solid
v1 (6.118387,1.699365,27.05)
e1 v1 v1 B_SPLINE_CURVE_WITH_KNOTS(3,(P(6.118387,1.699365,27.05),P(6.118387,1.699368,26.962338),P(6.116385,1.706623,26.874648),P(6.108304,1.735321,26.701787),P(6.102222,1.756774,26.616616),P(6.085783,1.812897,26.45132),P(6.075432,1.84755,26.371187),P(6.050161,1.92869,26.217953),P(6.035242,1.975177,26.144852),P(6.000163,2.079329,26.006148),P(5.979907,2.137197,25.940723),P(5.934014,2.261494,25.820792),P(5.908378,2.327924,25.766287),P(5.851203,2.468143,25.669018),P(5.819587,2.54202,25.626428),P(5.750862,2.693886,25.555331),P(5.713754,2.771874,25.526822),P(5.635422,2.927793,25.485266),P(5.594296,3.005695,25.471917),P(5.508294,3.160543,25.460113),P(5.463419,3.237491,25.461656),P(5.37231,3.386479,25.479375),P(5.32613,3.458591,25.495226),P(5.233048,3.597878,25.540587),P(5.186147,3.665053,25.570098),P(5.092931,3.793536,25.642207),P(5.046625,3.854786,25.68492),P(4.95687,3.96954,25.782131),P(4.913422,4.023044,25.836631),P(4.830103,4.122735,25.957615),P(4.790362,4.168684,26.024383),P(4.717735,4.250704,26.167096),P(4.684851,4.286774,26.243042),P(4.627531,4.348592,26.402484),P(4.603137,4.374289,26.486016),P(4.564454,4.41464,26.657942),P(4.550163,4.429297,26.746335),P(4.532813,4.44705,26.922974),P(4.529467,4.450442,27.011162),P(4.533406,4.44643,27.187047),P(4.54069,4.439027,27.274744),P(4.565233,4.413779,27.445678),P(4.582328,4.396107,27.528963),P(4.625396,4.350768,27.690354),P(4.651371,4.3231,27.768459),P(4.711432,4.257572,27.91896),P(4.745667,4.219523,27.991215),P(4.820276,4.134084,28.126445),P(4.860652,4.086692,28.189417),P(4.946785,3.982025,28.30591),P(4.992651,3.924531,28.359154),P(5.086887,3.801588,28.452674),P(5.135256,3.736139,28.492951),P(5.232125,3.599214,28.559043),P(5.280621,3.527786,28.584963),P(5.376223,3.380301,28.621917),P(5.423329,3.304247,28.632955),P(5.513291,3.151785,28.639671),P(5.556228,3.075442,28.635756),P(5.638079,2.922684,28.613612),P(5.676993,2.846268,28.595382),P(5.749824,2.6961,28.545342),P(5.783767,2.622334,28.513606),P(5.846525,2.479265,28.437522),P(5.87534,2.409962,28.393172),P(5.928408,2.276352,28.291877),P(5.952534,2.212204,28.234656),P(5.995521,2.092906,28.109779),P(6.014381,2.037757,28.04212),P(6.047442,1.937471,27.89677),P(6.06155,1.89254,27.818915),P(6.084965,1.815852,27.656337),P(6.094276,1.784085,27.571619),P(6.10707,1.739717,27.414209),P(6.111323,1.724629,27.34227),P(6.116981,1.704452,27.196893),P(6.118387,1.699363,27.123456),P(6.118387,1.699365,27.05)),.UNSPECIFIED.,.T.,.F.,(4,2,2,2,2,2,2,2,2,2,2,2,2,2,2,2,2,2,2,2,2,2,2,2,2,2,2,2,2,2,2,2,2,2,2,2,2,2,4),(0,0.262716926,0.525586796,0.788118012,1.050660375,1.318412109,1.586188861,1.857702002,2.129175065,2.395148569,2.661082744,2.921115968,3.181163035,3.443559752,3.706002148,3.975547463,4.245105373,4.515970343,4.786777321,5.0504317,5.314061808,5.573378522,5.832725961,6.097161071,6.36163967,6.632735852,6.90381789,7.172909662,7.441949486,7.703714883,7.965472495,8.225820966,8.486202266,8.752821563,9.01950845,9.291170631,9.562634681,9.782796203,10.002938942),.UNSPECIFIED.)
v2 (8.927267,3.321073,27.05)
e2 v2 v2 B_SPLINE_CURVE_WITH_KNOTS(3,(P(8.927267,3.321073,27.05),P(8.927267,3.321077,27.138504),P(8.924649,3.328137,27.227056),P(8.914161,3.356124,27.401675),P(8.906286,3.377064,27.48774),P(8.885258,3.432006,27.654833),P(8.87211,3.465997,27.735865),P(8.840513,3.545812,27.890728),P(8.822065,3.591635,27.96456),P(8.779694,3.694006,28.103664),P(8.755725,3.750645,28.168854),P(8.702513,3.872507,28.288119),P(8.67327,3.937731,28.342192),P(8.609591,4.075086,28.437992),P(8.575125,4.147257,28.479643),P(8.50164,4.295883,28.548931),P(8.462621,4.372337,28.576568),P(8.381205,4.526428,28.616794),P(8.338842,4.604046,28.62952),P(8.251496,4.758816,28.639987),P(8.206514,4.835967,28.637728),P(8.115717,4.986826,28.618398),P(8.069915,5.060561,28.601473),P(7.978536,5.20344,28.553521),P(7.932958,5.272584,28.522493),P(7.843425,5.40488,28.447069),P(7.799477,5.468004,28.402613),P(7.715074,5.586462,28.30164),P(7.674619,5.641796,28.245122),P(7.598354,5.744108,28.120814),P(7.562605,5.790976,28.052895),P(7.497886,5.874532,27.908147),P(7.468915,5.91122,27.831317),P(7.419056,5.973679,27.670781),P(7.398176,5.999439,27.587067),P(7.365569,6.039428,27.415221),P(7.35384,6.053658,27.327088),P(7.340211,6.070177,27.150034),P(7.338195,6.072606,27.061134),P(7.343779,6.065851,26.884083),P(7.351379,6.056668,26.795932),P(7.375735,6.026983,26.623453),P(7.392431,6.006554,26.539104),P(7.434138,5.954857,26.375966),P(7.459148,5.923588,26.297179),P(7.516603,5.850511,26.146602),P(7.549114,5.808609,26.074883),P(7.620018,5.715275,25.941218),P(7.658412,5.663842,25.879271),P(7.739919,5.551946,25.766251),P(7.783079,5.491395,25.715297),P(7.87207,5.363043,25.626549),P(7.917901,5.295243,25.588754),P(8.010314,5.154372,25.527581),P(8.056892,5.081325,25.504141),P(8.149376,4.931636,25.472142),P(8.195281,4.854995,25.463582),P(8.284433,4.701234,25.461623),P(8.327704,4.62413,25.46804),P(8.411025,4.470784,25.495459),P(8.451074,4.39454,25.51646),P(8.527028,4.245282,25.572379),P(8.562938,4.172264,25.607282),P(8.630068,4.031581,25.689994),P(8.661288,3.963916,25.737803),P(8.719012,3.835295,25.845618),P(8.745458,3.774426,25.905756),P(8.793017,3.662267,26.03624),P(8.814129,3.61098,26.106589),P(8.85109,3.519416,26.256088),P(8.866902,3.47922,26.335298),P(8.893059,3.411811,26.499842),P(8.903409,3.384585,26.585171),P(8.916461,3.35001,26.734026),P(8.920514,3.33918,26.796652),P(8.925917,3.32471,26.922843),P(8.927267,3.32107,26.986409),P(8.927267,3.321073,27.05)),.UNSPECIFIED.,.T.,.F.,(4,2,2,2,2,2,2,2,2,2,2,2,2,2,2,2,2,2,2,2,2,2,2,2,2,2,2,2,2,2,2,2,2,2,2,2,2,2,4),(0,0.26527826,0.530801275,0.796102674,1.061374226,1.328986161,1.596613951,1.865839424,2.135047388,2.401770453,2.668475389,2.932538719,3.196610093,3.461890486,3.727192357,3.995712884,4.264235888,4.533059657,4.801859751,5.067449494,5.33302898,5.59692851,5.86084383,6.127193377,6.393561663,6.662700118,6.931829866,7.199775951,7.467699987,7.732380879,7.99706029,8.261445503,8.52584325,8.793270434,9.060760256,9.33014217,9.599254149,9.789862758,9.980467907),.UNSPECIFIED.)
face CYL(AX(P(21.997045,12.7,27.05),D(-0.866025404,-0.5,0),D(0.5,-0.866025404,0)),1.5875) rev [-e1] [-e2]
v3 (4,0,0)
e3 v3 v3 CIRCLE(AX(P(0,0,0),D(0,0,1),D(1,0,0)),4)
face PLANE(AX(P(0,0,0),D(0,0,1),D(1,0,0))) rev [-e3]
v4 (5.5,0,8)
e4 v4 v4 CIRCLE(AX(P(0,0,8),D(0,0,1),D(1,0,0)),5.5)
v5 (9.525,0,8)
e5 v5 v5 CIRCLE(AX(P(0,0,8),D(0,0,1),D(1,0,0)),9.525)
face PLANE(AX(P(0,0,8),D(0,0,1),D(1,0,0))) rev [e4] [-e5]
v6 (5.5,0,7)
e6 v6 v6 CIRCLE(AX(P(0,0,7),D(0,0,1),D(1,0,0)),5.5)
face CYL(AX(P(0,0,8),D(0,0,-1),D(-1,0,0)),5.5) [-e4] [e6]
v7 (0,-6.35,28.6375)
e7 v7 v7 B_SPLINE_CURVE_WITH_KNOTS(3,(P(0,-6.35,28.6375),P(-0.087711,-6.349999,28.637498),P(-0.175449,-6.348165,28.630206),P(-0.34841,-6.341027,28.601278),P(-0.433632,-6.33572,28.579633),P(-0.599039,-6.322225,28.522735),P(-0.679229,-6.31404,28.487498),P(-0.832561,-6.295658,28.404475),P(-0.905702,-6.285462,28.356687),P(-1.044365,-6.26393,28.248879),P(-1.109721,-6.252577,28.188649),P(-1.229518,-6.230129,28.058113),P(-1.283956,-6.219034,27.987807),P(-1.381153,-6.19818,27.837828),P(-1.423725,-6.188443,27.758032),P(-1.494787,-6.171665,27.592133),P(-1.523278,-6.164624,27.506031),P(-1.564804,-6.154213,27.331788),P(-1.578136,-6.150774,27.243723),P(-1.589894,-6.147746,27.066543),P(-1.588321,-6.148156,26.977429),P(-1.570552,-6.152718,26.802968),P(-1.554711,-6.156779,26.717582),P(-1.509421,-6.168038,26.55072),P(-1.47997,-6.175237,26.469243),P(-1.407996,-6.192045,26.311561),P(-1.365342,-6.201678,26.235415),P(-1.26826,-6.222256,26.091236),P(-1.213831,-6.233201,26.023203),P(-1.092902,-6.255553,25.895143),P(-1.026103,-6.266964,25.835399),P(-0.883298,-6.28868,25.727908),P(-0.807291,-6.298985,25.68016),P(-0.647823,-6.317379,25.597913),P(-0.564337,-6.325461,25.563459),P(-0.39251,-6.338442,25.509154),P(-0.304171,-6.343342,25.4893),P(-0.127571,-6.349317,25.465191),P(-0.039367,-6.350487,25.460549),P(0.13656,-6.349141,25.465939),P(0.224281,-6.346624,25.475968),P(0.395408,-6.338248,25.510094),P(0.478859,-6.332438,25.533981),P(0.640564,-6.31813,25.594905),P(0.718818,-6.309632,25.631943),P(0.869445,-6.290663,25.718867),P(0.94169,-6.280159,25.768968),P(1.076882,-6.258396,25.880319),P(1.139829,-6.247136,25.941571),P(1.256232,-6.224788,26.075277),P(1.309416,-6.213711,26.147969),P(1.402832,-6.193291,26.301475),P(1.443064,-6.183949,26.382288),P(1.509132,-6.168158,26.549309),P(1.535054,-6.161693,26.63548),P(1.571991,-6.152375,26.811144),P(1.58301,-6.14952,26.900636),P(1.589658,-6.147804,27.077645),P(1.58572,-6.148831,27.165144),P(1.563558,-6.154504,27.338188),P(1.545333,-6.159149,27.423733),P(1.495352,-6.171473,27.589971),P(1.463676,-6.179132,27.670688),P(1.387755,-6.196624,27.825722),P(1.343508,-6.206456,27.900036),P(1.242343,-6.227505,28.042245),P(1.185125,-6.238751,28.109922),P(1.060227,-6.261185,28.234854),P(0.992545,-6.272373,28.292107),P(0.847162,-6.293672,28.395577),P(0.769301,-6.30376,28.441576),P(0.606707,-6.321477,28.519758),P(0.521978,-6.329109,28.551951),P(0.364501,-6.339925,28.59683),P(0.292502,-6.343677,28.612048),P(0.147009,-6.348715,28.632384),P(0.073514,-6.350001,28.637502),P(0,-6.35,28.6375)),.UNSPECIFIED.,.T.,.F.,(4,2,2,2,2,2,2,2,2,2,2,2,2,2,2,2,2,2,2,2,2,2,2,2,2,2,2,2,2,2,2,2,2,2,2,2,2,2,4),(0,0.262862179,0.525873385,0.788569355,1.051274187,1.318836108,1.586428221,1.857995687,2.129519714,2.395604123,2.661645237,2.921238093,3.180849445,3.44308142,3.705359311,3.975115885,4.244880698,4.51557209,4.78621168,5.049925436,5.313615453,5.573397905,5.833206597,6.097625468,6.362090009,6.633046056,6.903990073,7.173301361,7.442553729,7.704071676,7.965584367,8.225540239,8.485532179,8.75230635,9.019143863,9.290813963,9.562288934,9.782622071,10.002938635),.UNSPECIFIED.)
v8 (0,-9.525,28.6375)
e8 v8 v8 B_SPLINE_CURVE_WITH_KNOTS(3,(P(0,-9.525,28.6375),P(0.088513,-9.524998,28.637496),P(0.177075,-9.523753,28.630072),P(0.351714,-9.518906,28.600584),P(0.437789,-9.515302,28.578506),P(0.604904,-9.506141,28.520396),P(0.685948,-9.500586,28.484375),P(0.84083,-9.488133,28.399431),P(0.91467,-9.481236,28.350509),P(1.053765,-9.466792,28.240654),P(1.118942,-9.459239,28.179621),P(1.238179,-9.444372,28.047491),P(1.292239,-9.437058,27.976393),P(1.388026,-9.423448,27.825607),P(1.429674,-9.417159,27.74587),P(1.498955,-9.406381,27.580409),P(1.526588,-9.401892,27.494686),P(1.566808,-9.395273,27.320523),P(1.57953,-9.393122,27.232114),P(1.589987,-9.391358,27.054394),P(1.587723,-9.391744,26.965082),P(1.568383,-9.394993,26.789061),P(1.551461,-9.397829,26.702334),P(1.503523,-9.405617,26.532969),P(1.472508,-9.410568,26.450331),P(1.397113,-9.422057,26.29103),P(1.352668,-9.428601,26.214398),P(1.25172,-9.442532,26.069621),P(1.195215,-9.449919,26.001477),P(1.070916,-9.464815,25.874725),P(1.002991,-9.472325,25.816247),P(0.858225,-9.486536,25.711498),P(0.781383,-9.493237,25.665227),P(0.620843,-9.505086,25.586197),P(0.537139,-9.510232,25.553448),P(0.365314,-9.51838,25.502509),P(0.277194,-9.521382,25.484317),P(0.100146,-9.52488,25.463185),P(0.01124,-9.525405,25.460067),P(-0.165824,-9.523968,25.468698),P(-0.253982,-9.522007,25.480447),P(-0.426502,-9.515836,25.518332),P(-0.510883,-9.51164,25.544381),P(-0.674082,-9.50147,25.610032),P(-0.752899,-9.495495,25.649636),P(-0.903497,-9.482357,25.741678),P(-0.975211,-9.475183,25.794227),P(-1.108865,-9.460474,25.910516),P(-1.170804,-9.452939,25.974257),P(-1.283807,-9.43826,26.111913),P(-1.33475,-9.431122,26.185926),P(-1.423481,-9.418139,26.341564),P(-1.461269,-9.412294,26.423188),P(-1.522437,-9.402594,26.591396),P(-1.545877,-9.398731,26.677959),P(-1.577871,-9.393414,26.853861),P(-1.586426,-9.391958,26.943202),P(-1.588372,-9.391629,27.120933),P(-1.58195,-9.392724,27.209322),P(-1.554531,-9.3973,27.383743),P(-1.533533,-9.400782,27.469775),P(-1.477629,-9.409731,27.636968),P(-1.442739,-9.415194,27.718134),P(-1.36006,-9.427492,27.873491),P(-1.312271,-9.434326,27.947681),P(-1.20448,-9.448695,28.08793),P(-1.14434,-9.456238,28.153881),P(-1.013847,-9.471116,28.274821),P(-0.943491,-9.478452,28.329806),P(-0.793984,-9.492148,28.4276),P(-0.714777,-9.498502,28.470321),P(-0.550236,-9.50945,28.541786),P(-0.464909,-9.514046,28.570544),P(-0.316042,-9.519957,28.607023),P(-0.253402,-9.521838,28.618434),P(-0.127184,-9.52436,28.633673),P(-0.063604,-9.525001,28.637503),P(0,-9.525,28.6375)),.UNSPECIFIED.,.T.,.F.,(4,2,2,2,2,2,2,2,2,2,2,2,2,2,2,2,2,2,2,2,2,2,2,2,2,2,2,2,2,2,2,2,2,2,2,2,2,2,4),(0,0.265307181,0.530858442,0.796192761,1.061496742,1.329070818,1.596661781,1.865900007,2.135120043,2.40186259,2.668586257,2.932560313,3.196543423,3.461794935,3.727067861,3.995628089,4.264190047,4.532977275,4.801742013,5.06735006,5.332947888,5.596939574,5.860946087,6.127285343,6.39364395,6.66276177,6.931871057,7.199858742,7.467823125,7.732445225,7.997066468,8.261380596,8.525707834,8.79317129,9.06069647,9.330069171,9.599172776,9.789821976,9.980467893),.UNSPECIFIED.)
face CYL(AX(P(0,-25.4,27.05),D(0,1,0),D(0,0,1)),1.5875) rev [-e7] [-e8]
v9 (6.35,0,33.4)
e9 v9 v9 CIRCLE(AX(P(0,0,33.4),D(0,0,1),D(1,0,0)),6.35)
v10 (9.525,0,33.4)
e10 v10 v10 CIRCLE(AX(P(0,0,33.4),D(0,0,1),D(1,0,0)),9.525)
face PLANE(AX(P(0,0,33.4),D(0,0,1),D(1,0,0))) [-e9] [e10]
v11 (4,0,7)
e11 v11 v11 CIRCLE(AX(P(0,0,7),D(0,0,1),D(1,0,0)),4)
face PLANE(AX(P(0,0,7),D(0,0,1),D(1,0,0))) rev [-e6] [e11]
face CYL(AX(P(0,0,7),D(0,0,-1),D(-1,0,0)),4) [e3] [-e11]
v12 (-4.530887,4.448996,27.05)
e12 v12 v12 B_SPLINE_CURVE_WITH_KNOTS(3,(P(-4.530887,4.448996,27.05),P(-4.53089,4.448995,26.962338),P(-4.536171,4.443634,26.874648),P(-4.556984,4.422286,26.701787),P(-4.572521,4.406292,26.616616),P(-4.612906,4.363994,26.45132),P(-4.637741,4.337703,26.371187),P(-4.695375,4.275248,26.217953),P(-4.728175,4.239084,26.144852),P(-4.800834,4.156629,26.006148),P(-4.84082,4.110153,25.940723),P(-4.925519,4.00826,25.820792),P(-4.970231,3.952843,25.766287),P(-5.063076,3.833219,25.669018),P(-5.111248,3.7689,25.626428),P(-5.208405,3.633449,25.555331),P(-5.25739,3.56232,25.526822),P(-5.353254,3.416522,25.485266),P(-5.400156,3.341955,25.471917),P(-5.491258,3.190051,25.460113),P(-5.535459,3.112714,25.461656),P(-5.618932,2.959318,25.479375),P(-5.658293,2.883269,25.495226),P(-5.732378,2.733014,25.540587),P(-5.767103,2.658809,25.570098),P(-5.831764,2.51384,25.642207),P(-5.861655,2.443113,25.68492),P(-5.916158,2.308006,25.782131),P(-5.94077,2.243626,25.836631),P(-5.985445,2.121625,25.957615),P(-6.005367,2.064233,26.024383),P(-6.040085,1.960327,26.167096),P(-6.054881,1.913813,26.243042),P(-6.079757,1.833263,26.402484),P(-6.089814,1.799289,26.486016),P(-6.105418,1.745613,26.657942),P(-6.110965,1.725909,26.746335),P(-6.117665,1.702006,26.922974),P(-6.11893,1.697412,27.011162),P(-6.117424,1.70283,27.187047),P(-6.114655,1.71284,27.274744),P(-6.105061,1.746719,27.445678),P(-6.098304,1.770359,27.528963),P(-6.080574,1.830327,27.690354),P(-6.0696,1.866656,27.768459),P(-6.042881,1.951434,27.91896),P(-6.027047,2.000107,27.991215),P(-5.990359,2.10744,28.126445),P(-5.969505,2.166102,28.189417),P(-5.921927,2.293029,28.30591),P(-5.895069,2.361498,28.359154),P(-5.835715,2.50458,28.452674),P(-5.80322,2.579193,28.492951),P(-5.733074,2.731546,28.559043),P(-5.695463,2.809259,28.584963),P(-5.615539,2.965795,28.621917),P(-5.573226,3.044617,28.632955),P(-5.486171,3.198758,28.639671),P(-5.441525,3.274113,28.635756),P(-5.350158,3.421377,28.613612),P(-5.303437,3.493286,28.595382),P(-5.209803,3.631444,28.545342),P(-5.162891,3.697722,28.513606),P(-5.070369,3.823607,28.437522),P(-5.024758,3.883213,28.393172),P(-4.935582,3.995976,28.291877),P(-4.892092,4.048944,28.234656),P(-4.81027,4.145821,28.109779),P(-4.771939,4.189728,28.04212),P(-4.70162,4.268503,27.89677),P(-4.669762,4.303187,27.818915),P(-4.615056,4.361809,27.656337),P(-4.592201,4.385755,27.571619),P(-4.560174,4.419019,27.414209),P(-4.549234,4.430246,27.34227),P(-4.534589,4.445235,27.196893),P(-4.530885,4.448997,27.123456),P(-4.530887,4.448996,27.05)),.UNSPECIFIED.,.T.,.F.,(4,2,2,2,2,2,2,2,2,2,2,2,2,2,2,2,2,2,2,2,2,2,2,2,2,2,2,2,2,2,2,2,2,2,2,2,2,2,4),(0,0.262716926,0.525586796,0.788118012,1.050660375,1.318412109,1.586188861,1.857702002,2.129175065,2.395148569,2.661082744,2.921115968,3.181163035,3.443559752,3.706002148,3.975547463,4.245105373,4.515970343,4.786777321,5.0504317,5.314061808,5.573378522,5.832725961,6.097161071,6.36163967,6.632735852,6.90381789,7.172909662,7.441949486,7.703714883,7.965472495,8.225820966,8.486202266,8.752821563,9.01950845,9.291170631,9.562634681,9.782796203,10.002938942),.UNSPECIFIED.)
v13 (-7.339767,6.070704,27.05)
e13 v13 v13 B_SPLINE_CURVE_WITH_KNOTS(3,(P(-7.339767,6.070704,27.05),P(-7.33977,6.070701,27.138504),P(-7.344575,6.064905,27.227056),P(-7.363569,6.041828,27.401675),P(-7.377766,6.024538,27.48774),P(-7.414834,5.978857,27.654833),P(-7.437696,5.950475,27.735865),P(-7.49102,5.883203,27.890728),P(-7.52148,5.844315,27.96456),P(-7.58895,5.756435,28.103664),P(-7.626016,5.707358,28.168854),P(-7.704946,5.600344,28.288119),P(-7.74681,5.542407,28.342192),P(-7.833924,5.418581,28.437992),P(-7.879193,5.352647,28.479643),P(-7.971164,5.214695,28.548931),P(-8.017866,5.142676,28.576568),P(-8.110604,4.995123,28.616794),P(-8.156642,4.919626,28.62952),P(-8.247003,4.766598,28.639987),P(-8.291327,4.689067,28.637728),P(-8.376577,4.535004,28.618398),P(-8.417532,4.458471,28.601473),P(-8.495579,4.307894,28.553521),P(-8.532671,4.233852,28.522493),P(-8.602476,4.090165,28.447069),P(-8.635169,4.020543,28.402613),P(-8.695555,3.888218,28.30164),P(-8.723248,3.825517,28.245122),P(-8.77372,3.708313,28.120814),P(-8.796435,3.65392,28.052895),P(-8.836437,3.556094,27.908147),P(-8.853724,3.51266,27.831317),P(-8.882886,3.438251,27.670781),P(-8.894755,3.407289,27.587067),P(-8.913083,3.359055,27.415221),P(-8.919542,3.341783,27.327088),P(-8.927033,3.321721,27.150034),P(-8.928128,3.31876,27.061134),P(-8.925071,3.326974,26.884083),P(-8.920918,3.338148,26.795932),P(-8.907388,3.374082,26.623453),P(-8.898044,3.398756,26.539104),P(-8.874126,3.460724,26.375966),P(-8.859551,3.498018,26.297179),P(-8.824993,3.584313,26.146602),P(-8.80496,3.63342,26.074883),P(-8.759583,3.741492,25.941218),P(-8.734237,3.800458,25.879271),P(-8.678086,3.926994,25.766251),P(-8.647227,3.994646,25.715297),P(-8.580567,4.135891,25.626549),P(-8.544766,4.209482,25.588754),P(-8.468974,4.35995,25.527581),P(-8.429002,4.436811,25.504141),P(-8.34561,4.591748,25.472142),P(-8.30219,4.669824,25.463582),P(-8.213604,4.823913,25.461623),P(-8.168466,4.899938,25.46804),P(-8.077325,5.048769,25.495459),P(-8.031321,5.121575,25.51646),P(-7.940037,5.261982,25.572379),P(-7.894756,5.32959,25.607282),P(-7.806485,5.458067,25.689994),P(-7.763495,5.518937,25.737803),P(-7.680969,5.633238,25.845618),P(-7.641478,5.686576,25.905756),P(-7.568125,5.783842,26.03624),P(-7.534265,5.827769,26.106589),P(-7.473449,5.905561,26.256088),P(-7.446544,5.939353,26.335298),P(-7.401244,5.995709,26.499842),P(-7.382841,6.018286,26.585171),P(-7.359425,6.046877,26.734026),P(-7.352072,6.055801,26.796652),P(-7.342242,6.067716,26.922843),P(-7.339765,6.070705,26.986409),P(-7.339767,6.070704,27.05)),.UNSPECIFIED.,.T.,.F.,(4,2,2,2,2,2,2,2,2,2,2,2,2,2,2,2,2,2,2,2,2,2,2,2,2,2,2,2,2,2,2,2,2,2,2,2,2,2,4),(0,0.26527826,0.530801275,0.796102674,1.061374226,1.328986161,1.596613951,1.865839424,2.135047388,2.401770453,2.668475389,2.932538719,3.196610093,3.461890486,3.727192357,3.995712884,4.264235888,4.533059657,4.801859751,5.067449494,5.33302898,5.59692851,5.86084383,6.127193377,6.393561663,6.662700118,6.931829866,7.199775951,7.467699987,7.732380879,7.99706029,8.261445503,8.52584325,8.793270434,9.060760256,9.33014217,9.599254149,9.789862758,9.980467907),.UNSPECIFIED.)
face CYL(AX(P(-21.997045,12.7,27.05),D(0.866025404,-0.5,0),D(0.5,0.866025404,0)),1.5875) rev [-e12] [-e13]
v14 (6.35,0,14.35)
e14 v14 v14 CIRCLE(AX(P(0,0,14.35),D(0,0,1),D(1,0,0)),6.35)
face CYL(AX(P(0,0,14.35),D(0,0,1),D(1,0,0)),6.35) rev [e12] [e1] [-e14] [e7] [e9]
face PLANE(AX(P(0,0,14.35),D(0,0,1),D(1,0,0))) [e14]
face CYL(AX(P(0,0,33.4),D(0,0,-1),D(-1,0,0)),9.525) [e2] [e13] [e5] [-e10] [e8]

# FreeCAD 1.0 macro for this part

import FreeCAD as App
import Part
import Sketcher

V = App.Vector
Q = App.Units.Quantity

doc = App.newDocument("Part")
body = doc.addObject("PartDesign::Body", "Body")

# Sketch on XY plane
sketch1 = body.newObject("Sketcher::SketchObject", "Sketch")
sketch1.AttachmentSupport = (doc.getObject("XY_Plane"), [""])
sketch1.MapMode = "FlatFace"
sketch1.addGeometry(Part.Circle(V(0, 0, 0), V(0, 0, 1), 4), False)
sketch1.addConstraint([
    Sketcher.Constraint("Coincident", 0, 3, -1, 1),
    Sketcher.Constraint("Diameter", 0, Q("8 mm")),
])
pad1 = body.newObject("PartDesign::Pad", "Pad")
pad1.Profile = sketch1
pad1.Length = 7

# Sketch on XY plane
sketch2 = body.newObject("Sketcher::SketchObject", "Sketch001")
sketch2.AttachmentSupport = (doc.getObject("XY_Plane"), [""])
sketch2.MapMode = "FlatFace"
sketch2.AttachmentOffset = App.Placement(V(0, 0, 7), App.Rotation())
sketch2.addGeometry(Part.Circle(V(0, 0, 0), V(0, 0, 1), 5.5), False)
sketch2.addConstraint([
    Sketcher.Constraint("Coincident", 0, 3, -1, 1),
    Sketcher.Constraint("Diameter", 0, Q("11 mm")),
])
pad2 = body.newObject("PartDesign::Pad", "Pad001")
pad2.Profile = sketch2
pad2.Length = 1

# Sketch on XY plane
sketch3 = body.newObject("Sketcher::SketchObject", "Sketch002")
sketch3.AttachmentSupport = (doc.getObject("XY_Plane"), [""])
sketch3.MapMode = "FlatFace"
sketch3.AttachmentOffset = App.Placement(V(0, 0, 8), App.Rotation())
sketch3.addGeometry(Part.Circle(V(0, 0, 0), V(0, 0, 1), 9.525), False)
sketch3.addConstraint([
    Sketcher.Constraint("Coincident", 0, 3, -1, 1),
    Sketcher.Constraint("Diameter", 0, Q("19.05 mm")),
])
pad3 = body.newObject("PartDesign::Pad", "Pad002")
pad3.Profile = sketch3
pad3.Length = 25.4

# Sketch on XY plane
sketch4 = body.newObject("Sketcher::SketchObject", "Sketch003")
sketch4.AttachmentSupport = (doc.getObject("XY_Plane"), [""])
sketch4.MapMode = "FlatFace"
sketch4.AttachmentOffset = App.Placement(V(0, 0, 33.4), App.Rotation())
sketch4.addGeometry(Part.Circle(V(0, 0, 0), V(0, 0, 1), 6.35), False)
sketch4.addConstraint([
    Sketcher.Constraint("Coincident", 0, 3, -1, 1),
    Sketcher.Constraint("Diameter", 0, Q("12.7 mm")),
])
pocket1 = body.newObject("PartDesign::Pocket", "Pocket")
pocket1.Profile = sketch4
pocket1.Length = 19.05

# Sketch on XZ plane
sketch5 = body.newObject("Sketcher::SketchObject", "Sketch004")
sketch5.AttachmentSupport = (doc.getObject("XZ_Plane"), [""])
sketch5.MapMode = "FlatFace"
sketch5.addGeometry(Part.Circle(V(0, 27.05, 0), V(0, 0, 1), 1.5875), False)
sketch5.addConstraint([
    Sketcher.Constraint("PointOnObject", 0, 3, -2),
    Sketcher.Constraint("Diameter", 0, Q("3.175 mm")),
    Sketcher.Constraint("DistanceY", -1, 1, 0, 3, Q("27.05 mm")),
])
pocket2 = body.newObject("PartDesign::Pocket", "Pocket001")
pocket2.Profile = sketch5
pocket2.Length = 25.4
pocket2.Reversed = True
doc.recompute()

polarpattern = body.newObject("PartDesign::PolarPattern", "PolarPattern")
polarpattern.Originals = [pocket2]
polarpattern.Axis = (doc.getObject("Z_Axis"), [""])
polarpattern.Angle = 360
polarpattern.Occurrences = 3
body.Tip = polarpattern

doc.recompute()
